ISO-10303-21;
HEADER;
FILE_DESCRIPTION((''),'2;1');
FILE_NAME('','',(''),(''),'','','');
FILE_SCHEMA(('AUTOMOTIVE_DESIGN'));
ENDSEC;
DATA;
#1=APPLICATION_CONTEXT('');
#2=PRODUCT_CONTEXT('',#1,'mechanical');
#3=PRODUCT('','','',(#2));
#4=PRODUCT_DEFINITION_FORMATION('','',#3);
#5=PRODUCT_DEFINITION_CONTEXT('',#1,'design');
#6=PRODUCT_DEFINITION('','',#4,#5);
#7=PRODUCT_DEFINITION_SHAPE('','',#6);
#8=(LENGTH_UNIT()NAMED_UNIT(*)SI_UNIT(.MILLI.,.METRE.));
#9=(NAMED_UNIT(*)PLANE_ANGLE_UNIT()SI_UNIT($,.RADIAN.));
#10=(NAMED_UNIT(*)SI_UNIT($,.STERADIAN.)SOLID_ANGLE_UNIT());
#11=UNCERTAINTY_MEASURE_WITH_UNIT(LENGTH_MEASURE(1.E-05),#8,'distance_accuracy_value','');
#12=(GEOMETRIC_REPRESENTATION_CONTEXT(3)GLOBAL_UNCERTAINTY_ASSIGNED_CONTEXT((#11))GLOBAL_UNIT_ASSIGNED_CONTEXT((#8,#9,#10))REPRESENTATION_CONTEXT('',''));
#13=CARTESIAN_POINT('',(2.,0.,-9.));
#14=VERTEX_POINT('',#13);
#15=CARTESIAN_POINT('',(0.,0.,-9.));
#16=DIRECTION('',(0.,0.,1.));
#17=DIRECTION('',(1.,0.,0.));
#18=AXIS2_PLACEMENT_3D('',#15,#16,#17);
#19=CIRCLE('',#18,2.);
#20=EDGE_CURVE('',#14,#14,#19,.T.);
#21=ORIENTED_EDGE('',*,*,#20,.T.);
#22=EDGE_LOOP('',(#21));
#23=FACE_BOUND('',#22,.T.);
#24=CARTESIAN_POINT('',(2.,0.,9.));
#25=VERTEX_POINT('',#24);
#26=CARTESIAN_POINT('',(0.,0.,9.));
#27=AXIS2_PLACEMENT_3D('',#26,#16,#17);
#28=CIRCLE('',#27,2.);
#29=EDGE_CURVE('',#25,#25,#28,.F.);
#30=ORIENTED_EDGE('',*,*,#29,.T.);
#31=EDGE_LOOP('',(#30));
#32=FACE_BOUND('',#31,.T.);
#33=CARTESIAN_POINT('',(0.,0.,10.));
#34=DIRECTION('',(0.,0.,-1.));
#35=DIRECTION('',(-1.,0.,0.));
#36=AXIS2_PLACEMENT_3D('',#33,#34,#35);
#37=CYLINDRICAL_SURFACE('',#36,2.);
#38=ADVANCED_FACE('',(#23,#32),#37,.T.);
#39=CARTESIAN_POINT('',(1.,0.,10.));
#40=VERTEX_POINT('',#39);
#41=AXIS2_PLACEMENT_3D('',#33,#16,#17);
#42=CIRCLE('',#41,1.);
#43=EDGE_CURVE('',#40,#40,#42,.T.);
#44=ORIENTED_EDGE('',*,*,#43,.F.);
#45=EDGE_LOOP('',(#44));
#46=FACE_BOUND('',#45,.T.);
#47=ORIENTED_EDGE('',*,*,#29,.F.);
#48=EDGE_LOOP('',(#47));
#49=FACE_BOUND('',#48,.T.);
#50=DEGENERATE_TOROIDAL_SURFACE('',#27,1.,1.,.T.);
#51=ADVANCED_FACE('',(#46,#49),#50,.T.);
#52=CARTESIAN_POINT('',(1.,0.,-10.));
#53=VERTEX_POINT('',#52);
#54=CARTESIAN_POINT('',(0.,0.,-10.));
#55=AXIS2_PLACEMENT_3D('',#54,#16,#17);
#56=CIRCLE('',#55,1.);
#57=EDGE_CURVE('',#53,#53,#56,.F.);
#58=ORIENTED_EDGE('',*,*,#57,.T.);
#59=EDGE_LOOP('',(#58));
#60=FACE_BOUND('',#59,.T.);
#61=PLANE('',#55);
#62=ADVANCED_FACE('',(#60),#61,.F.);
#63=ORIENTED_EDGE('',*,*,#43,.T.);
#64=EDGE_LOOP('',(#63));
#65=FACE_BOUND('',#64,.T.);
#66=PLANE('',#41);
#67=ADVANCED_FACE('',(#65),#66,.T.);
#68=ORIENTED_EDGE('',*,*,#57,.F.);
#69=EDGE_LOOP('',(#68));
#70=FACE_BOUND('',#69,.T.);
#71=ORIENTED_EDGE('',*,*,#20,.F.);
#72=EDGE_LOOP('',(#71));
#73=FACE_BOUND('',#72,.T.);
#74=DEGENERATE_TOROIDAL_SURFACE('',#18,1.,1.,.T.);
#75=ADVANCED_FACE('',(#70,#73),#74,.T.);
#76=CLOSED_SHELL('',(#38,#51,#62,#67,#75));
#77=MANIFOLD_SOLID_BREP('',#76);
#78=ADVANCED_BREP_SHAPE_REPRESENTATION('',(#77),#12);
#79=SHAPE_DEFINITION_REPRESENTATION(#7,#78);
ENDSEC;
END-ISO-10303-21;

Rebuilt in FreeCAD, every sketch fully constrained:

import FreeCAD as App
import Part
import Sketcher

V = App.Vector
Q = App.Units.Quantity


def edges_at(feature, points):
    """Names of the edges that pass closest to the given points."""
    edges = feature.Shape.Edges
    near = lambda p: min(range(len(edges)), key=lambda i: edges[i].distToShape(Part.Vertex(*p))[0])
    return sorted({f"Edge{near(p) + 1}" for p in points})

doc = App.newDocument("Part")
body = doc.addObject("PartDesign::Body", "Body")

# Sketch on XY plane
sketch1 = body.newObject("Sketcher::SketchObject", "Sketch")
sketch1.AttachmentSupport = (doc.getObject("XY_Plane"), [""])
sketch1.MapMode = "FlatFace"
sketch1.addGeometry(Part.Circle(V(0, 0, 0), V(0, 0, 1), 2), False)
sketch1.addConstraint([
    Sketcher.Constraint("Coincident", 0, 3, -1, 1),
    Sketcher.Constraint("Diameter", 0, Q("4 mm")),
])
pad1 = body.newObject("PartDesign::Pad", "Pad")
pad1.Profile = sketch1
pad1.Length = 20
pad1.Midplane = True
doc.recompute()

fillet = body.newObject("PartDesign::Fillet", "Fillet")
fillet.Base = (pad1, edges_at(pad1, [(-2, 0, -10), (-2, 0, 10)]))
fillet.Radius = 1

doc.recompute()
